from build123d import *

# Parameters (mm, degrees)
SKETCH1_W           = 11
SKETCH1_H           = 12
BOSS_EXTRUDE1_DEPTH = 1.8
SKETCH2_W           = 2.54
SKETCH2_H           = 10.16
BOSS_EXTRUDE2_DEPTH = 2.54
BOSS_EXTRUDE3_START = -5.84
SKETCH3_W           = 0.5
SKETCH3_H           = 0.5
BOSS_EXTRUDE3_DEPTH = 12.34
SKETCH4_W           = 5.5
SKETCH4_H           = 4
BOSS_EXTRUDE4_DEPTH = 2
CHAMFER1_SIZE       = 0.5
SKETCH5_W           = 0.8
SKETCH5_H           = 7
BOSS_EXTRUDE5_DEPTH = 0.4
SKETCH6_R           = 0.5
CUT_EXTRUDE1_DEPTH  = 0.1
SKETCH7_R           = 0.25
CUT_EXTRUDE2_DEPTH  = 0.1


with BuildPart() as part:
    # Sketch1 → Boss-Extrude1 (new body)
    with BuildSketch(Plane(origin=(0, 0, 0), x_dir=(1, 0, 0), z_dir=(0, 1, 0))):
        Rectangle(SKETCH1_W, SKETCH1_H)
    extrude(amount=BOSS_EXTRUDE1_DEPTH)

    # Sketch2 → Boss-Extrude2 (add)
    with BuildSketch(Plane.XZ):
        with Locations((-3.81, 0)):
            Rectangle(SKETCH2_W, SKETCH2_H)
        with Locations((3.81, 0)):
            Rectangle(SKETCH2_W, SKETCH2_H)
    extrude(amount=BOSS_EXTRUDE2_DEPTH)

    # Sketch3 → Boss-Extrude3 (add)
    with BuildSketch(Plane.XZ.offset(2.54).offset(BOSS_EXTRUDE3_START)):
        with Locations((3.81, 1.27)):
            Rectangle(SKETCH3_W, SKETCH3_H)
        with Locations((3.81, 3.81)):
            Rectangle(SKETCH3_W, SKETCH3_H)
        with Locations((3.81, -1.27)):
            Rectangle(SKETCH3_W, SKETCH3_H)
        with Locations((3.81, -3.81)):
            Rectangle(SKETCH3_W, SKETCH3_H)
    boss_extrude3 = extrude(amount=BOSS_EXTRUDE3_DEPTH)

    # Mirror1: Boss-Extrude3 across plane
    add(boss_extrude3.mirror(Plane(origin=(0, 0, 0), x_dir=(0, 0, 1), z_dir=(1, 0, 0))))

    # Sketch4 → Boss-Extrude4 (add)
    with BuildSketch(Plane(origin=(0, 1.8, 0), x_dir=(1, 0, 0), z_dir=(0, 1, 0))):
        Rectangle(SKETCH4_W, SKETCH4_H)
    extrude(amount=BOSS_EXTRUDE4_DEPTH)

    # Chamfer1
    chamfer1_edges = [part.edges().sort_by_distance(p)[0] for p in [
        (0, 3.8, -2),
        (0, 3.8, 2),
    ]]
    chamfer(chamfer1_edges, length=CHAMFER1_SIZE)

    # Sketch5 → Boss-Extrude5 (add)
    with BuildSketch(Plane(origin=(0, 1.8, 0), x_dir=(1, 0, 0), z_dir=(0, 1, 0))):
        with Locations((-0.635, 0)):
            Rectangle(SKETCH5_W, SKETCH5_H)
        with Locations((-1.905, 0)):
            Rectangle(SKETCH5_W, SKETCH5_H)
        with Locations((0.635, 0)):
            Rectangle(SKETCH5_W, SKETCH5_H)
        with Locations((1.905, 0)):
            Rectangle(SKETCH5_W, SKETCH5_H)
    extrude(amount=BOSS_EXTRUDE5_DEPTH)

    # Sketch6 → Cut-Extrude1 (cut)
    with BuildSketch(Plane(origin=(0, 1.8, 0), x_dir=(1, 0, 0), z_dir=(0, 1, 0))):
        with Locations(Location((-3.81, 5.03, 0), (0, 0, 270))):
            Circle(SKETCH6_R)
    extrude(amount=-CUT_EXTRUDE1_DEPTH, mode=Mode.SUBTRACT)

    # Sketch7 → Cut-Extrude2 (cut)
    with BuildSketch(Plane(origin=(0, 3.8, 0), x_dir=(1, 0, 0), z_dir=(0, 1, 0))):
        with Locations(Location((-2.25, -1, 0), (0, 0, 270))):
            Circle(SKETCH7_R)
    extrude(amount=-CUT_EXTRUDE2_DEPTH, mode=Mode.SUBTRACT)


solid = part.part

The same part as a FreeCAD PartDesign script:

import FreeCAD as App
import Part
import Sketcher


def edges_at(feature, points):
    """Names of the edges that pass closest to the given points."""
    edges = feature.Shape.Edges
    near = lambda p: min(range(len(edges)), key=lambda i: edges[i].distToShape(Part.Vertex(*p))[0])
    return sorted({f"Edge{near(p) + 1}" for p in points})

doc = App.newDocument("Part")
body = doc.addObject("PartDesign::Body", "Body")

sketch1 = body.newObject("Sketcher::SketchObject", "Sketch")
sketch1.AttachmentSupport = (doc.getObject("XZ_Plane"), [""])
sketch1.MapMode = "FlatFace"
sketch1.addGeometry(Part.LineSegment(App.Vector(-6, -6, 0), App.Vector(-6, 6, 0)), False)
sketch1.addGeometry(Part.LineSegment(App.Vector(-6, 6, 0), App.Vector(6, 6, 0)), False)
sketch1.addGeometry(Part.LineSegment(App.Vector(6, 6, 0), App.Vector(6, -6, 0)), False)
sketch1.addGeometry(Part.LineSegment(App.Vector(6, -6, 0), App.Vector(-6, -6, 0)), False)
sketch1.addConstraint(Sketcher.Constraint("Coincident", 0, 2, 1, 1))
sketch1.addConstraint(Sketcher.Constraint("Coincident", 1, 2, 2, 1))
sketch1.addConstraint(Sketcher.Constraint("Coincident", 2, 2, 3, 1))
sketch1.addConstraint(Sketcher.Constraint("Coincident", 3, 2, 0, 1))
sketch1.addConstraint(Sketcher.Constraint("Vertical", 0))
sketch1.addConstraint(Sketcher.Constraint("Horizontal", 1))
sketch1.addConstraint(Sketcher.Constraint("Vertical", 2))
sketch1.addConstraint(Sketcher.Constraint("Horizontal", 3))
sketch1.addConstraint(Sketcher.Constraint("Symmetric", 0, 2, 2, 2, -1, 1))
sketch1.addConstraint(Sketcher.Constraint("DistanceX", 1, 1, 1, 2, 11.0))
sketch1.addConstraint(Sketcher.Constraint("DistanceY", 0, 1, 0, 2, 12.0))
pad1 = body.newObject("PartDesign::Pad", "Pad")
pad1.Profile = sketch1
pad1.Length = 1.8
pad1.Reversed = True

sketch2 = body.newObject("Sketcher::SketchObject", "Sketch001")
sketch2.AttachmentSupport = (doc.getObject("XZ_Plane"), [""])
sketch2.MapMode = "FlatFace"
sketch2.addGeometry(Part.LineSegment(App.Vector(-5.1, 5.1, 0), App.Vector(-5.1, -5.1, 0)), False)
sketch2.addGeometry(Part.LineSegment(App.Vector(-5.1, -5.1, 0), App.Vector(-2.5, -5.1, 0)), False)
sketch2.addGeometry(Part.LineSegment(App.Vector(-2.5, -5.1, 0), App.Vector(-2.5, 5.1, 0)), False)
sketch2.addGeometry(Part.LineSegment(App.Vector(-2.5, 5.1, 0), App.Vector(-5.1, 5.1, 0)), False)
sketch2.addGeometry(Part.LineSegment(App.Vector(2.5, 5.1, 0), App.Vector(2.5, -5.1, 0)), False)
sketch2.addGeometry(Part.LineSegment(App.Vector(2.5, -5.1, 0), App.Vector(5.1, -5.1, 0)), False)
sketch2.addGeometry(Part.LineSegment(App.Vector(5.1, -5.1, 0), App.Vector(5.1, 5.1, 0)), False)
sketch2.addGeometry(Part.LineSegment(App.Vector(5.1, 5.1, 0), App.Vector(2.5, 5.1, 0)), False)
sketch2.addConstraint(Sketcher.Constraint("Coincident", 0, 2, 1, 1))
sketch2.addConstraint(Sketcher.Constraint("Coincident", 1, 2, 2, 1))
sketch2.addConstraint(Sketcher.Constraint("Coincident", 2, 2, 3, 1))
sketch2.addConstraint(Sketcher.Constraint("Coincident", 3, 2, 0, 1))
sketch2.addConstraint(Sketcher.Constraint("Coincident", 4, 2, 5, 1))
sketch2.addConstraint(Sketcher.Constraint("Coincident", 5, 2, 6, 1))
sketch2.addConstraint(Sketcher.Constraint("Coincident", 6, 2, 7, 1))
sketch2.addConstraint(Sketcher.Constraint("Coincident", 7, 2, 4, 1))
sketch2.addConstraint(Sketcher.Constraint("Vertical", 0))
sketch2.addConstraint(Sketcher.Constraint("Horizontal", 1))
sketch2.addConstraint(Sketcher.Constraint("Vertical", 2))
sketch2.addConstraint(Sketcher.Constraint("Horizontal", 3))
sketch2.addConstraint(Sketcher.Constraint("Vertical", 4))
sketch2.addConstraint(Sketcher.Constraint("Horizontal", 5))
sketch2.addConstraint(Sketcher.Constraint("Vertical", 6))
sketch2.addConstraint(Sketcher.Constraint("Horizontal", 7))
sketch2.addConstraint(Sketcher.Constraint("Symmetric", 2, 2, 4, 2, -1, 1))
sketch2.addConstraint(Sketcher.Constraint("Symmetric", 0, 2, 6, 2, -1, 1))
sketch2.addConstraint(Sketcher.Constraint("Horizontal", 1, 2, 4, 2))
sketch2.addConstraint(Sketcher.Constraint("DistanceX", 1, 1, 1, 2, 2.54))
sketch2.addConstraint(Sketcher.Constraint("DistanceY", 0, 2, 0, 1, 10.16))
sketch2.addConstraint(Sketcher.Constraint("DistanceX", 0, 2, -1, 1, 5.08))
pad2 = body.newObject("PartDesign::Pad", "Pad001")
pad2.Profile = sketch2
pad2.Length = 2.54

sketch3 = body.newObject("Sketcher::SketchObject", "Sketch002")
sketch3.AttachmentSupport = (doc.getObject("XZ_Plane"), [""])
sketch3.MapMode = "FlatFace"
sketch3.AttachmentOffset = App.Placement(App.Vector(0, 0, -3.3), App.Rotation())
sketch3.addGeometry(Part.LineSegment(App.Vector(3.56, 1.52, 0), App.Vector(3.56, 1.02, 0)), False)
sketch3.addGeometry(Part.LineSegment(App.Vector(3.56, 1.02, 0), App.Vector(4.06, 1.02, 0)), False)
sketch3.addGeometry(Part.LineSegment(App.Vector(4.06, 1.02, 0), App.Vector(4.06, 1.52, 0)), False)
sketch3.addGeometry(Part.LineSegment(App.Vector(4.06, 1.52, 0), App.Vector(3.56, 1.52, 0)), False)
sketch3.addGeometry(Part.LineSegment(App.Vector(3.56, 4.06, 0), App.Vector(3.56, 3.56, 0)), False)
sketch3.addGeometry(Part.LineSegment(App.Vector(3.56, 3.56, 0), App.Vector(4.06, 3.56, 0)), False)
sketch3.addGeometry(Part.LineSegment(App.Vector(4.06, 3.56, 0), App.Vector(4.06, 4.06, 0)), False)
sketch3.addGeometry(Part.LineSegment(App.Vector(4.06, 4.06, 0), App.Vector(3.56, 4.06, 0)), False)
sketch3.addGeometry(Part.LineSegment(App.Vector(3.56, -1.02, 0), App.Vector(3.56, -1.52, 0)), False)
sketch3.addGeometry(Part.LineSegment(App.Vector(3.56, -1.52, 0), App.Vector(4.06, -1.52, 0)), False)
sketch3.addGeometry(Part.LineSegment(App.Vector(4.06, -1.52, 0), App.Vector(4.06, -1.02, 0)), False)
sketch3.addGeometry(Part.LineSegment(App.Vector(4.06, -1.02, 0), App.Vector(3.56, -1.02, 0)), False)
sketch3.addGeometry(Part.LineSegment(App.Vector(3.56, -3.56, 0), App.Vector(3.56, -4.06, 0)), False)
sketch3.addGeometry(Part.LineSegment(App.Vector(3.56, -4.06, 0), App.Vector(4.06, -4.06, 0)), False)
sketch3.addGeometry(Part.LineSegment(App.Vector(4.06, -4.06, 0), App.Vector(4.06, -3.56, 0)), False)
sketch3.addGeometry(Part.LineSegment(App.Vector(4.06, -3.56, 0), App.Vector(3.56, -3.56, 0)), False)
sketch3.addConstraint(Sketcher.Constraint("Coincident", 0, 2, 1, 1))
sketch3.addConstraint(Sketcher.Constraint("Coincident", 1, 2, 2, 1))
sketch3.addConstraint(Sketcher.Constraint("Coincident", 2, 2, 3, 1))
sketch3.addConstraint(Sketcher.Constraint("Coincident", 3, 2, 0, 1))
sketch3.addConstraint(Sketcher.Constraint("Coincident", 4, 2, 5, 1))
sketch3.addConstraint(Sketcher.Constraint("Coincident", 5, 2, 6, 1))
sketch3.addConstraint(Sketcher.Constraint("Coincident", 6, 2, 7, 1))
sketch3.addConstraint(Sketcher.Constraint("Coincident", 7, 2, 4, 1))
sketch3.addConstraint(Sketcher.Constraint("Coincident", 8, 2, 9, 1))
sketch3.addConstraint(Sketcher.Constraint("Coincident", 9, 2, 10, 1))
sketch3.addConstraint(Sketcher.Constraint("Coincident", 10, 2, 11, 1))
sketch3.addConstraint(Sketcher.Constraint("Coincident", 11, 2, 8, 1))
sketch3.addConstraint(Sketcher.Constraint("Coincident", 12, 2, 13, 1))
sketch3.addConstraint(Sketcher.Constraint("Coincident", 13, 2, 14, 1))
sketch3.addConstraint(Sketcher.Constraint("Coincident", 14, 2, 15, 1))
sketch3.addConstraint(Sketcher.Constraint("Coincident", 15, 2, 12, 1))
sketch3.addConstraint(Sketcher.Constraint("Vertical", 0))
sketch3.addConstraint(Sketcher.Constraint("Horizontal", 1))
sketch3.addConstraint(Sketcher.Constraint("Vertical", 2))
sketch3.addConstraint(Sketcher.Constraint("Horizontal", 3))
sketch3.addConstraint(Sketcher.Constraint("Vertical", 4))
sketch3.addConstraint(Sketcher.Constraint("Horizontal", 5))
sketch3.addConstraint(Sketcher.Constraint("Vertical", 6))
sketch3.addConstraint(Sketcher.Constraint("Horizontal", 7))
sketch3.addConstraint(Sketcher.Constraint("Vertical", 8))
sketch3.addConstraint(Sketcher.Constraint("Horizontal", 9))
sketch3.addConstraint(Sketcher.Constraint("Vertical", 10))
sketch3.addConstraint(Sketcher.Constraint("Horizontal", 11))
sketch3.addConstraint(Sketcher.Constraint("Vertical", 12))
sketch3.addConstraint(Sketcher.Constraint("Horizontal", 13))
sketch3.addConstraint(Sketcher.Constraint("Vertical", 14))
sketch3.addConstraint(Sketcher.Constraint("Horizontal", 15))
sketch3.addConstraint(Sketcher.Constraint("Symmetric", 3, 2, 8, 2, -1))
sketch3.addConstraint(Sketcher.Constraint("Symmetric", 1, 2, 10, 2, -1))
sketch3.addConstraint(Sketcher.Constraint("Symmetric", 7, 2, 12, 2, -1))
sketch3.addConstraint(Sketcher.Constraint("Symmetric", 5, 2, 14, 2, -1))
sketch3.addConstraint(Sketcher.Constraint("Vertical", 3, 2, 4, 2))
sketch3.addConstraint(Sketcher.Constraint("Vertical", 2, 2, 5, 2))
sketch3.addConstraint(Sketcher.Constraint("Equal", 15, 0))
sketch3.addConstraint(Sketcher.Constraint("Equal", 2, 4))
sketch3.addConstraint(Sketcher.Constraint("DistanceX", 1, 1, 1, 2, 0.5))
sketch3.addConstraint(Sketcher.Constraint("DistanceX", -1, 1, 0, 2, 3.56))
sketch3.addConstraint(Sketcher.Constraint("DistanceY", -1, 1, 0, 2, 1.02))
sketch3.addConstraint(Sketcher.Constraint("DistanceY", -1, 1, 4, 2, 3.56))
pad3 = body.newObject("PartDesign::Pad", "Pad002")
pad3.Profile = sketch3
pad3.Length = 12.34
doc.recompute()

mirrored = body.newObject("PartDesign::Mirrored", "Mirrored")
mirrored.Originals = [pad3]
mirrored.MirrorPlane = (doc.getObject("YZ_Plane"), [""])
body.Tip = mirrored

sketch4 = body.newObject("Sketcher::SketchObject", "Sketch003")
sketch4.AttachmentSupport = (doc.getObject("XZ_Plane"), [""])
sketch4.MapMode = "FlatFace"
sketch4.AttachmentOffset = App.Placement(App.Vector(0, 0, -1.8), App.Rotation())
sketch4.addGeometry(Part.LineSegment(App.Vector(-2.8, -2, 0), App.Vector(-2.8, 2, 0)), False)
sketch4.addGeometry(Part.LineSegment(App.Vector(-2.8, 2, 0), App.Vector(2.8, 2, 0)), False)
sketch4.addGeometry(Part.LineSegment(App.Vector(2.8, 2, 0), App.Vector(2.8, -2, 0)), False)
sketch4.addGeometry(Part.LineSegment(App.Vector(2.8, -2, 0), App.Vector(-2.8, -2, 0)), False)
sketch4.addConstraint(Sketcher.Constraint("Coincident", 0, 2, 1, 1))
sketch4.addConstraint(Sketcher.Constraint("Coincident", 1, 2, 2, 1))
sketch4.addConstraint(Sketcher.Constraint("Coincident", 2, 2, 3, 1))
sketch4.addConstraint(Sketcher.Constraint("Coincident", 3, 2, 0, 1))
sketch4.addConstraint(Sketcher.Constraint("Vertical", 0))
sketch4.addConstraint(Sketcher.Constraint("Horizontal", 1))
sketch4.addConstraint(Sketcher.Constraint("Vertical", 2))
sketch4.addConstraint(Sketcher.Constraint("Horizontal", 3))
sketch4.addConstraint(Sketcher.Constraint("Symmetric", 0, 2, 2, 2, -1, 1))
sketch4.addConstraint(Sketcher.Constraint("DistanceY", 0, 1, 0, 2, 4.0))
sketch4.addConstraint(Sketcher.Constraint("DistanceX", 1, 1, 1, 2, 5.5))
pad4 = body.newObject("PartDesign::Pad", "Pad003")
pad4.Profile = sketch4
pad4.Length = 2
pad4.Reversed = True
doc.recompute()

chamfer = body.newObject("PartDesign::Chamfer", "Chamfer")
chamfer.Base = (pad4, edges_at(pad4, [(0, 3.8, -2), (0, 3.8, 2)]))
chamfer.Size = 0.5

sketch5 = body.newObject("Sketcher::SketchObject", "Sketch004")
sketch5.AttachmentSupport = (doc.getObject("XZ_Plane"), [""])
sketch5.MapMode = "FlatFace"
sketch5.AttachmentOffset = App.Placement(App.Vector(0, 0, -1.8), App.Rotation())
sketch5.addGeometry(Part.LineSegment(App.Vector(-1, -3.5, 0), App.Vector(-1, 3.5, 0)), False)
sketch5.addGeometry(Part.LineSegment(App.Vector(-1, 3.5, 0), App.Vector(-0.2, 3.5, 0)), False)
sketch5.addGeometry(Part.LineSegment(App.Vector(-0.2, 3.5, 0), App.Vector(-0.2, -3.5, 0)), False)
sketch5.addGeometry(Part.LineSegment(App.Vector(-0.2, -3.5, 0), App.Vector(-1, -3.5, 0)), False)
sketch5.addGeometry(Part.LineSegment(App.Vector(-2.3, -3.5, 0), App.Vector(-2.3, 3.5, 0)), False)
sketch5.addGeometry(Part.LineSegment(App.Vector(-2.3, 3.5, 0), App.Vector(-1.5, 3.5, 0)), False)
sketch5.addGeometry(Part.LineSegment(App.Vector(-1.5, 3.5, 0), App.Vector(-1.5, -3.5, 0)), False)
sketch5.addGeometry(Part.LineSegment(App.Vector(-1.5, -3.5, 0), App.Vector(-2.3, -3.5, 0)), False)
sketch5.addGeometry(Part.LineSegment(App.Vector(0.2, -3.5, 0), App.Vector(0.2, 3.5, 0)), False)
sketch5.addGeometry(Part.LineSegment(App.Vector(0.2, 3.5, 0), App.Vector(1, 3.5, 0)), False)
sketch5.addGeometry(Part.LineSegment(App.Vector(1, 3.5, 0), App.Vector(1, -3.5, 0)), False)
sketch5.addGeometry(Part.LineSegment(App.Vector(1, -3.5, 0), App.Vector(0.2, -3.5, 0)), False)
sketch5.addGeometry(Part.LineSegment(App.Vector(1.5, -3.5, 0), App.Vector(1.5, 3.5, 0)), False)
sketch5.addGeometry(Part.LineSegment(App.Vector(1.5, 3.5, 0), App.Vector(2.3, 3.5, 0)), False)
sketch5.addGeometry(Part.LineSegment(App.Vector(2.3, 3.5, 0), App.Vector(2.3, -3.5, 0)), False)
sketch5.addGeometry(Part.LineSegment(App.Vector(2.3, -3.5, 0), App.Vector(1.5, -3.5, 0)), False)
sketch5.addConstraint(Sketcher.Constraint("Coincident", 0, 2, 1, 1))
sketch5.addConstraint(Sketcher.Constraint("Coincident", 1, 2, 2, 1))
sketch5.addConstraint(Sketcher.Constraint("Coincident", 2, 2, 3, 1))
sketch5.addConstraint(Sketcher.Constraint("Coincident", 3, 2, 0, 1))
sketch5.addConstraint(Sketcher.Constraint("Coincident", 4, 2, 5, 1))
sketch5.addConstraint(Sketcher.Constraint("Coincident", 5, 2, 6, 1))
sketch5.addConstraint(Sketcher.Constraint("Coincident", 6, 2, 7, 1))
sketch5.addConstraint(Sketcher.Constraint("Coincident", 7, 2, 4, 1))
sketch5.addConstraint(Sketcher.Constraint("Coincident", 8, 2, 9, 1))
sketch5.addConstraint(Sketcher.Constraint("Coincident", 9, 2, 10, 1))
sketch5.addConstraint(Sketcher.Constraint("Coincident", 10, 2, 11, 1))
sketch5.addConstraint(Sketcher.Constraint("Coincident", 11, 2, 8, 1))
sketch5.addConstraint(Sketcher.Constraint("Coincident", 12, 2, 13, 1))
sketch5.addConstraint(Sketcher.Constraint("Coincident", 13, 2, 14, 1))
sketch5.addConstraint(Sketcher.Constraint("Coincident", 14, 2, 15, 1))
sketch5.addConstraint(Sketcher.Constraint("Coincident", 15, 2, 12, 1))
sketch5.addConstraint(Sketcher.Constraint("Vertical", 0))
sketch5.addConstraint(Sketcher.Constraint("Horizontal", 1))
sketch5.addConstraint(Sketcher.Constraint("Vertical", 2))
sketch5.addConstraint(Sketcher.Constraint("Horizontal", 3))
sketch5.addConstraint(Sketcher.Constraint("Vertical", 4))
sketch5.addConstraint(Sketcher.Constraint("Horizontal", 5))
sketch5.addConstraint(Sketcher.Constraint("Vertical", 6))
sketch5.addConstraint(Sketcher.Constraint("Horizontal", 7))
sketch5.addConstraint(Sketcher.Constraint("Vertical", 8))
sketch5.addConstraint(Sketcher.Constraint("Horizontal", 9))
sketch5.addConstraint(Sketcher.Constraint("Vertical", 10))
sketch5.addConstraint(Sketcher.Constraint("Horizontal", 11))
sketch5.addConstraint(Sketcher.Constraint("Vertical", 12))
sketch5.addConstraint(Sketcher.Constraint("Horizontal", 13))
sketch5.addConstraint(Sketcher.Constraint("Vertical", 14))
sketch5.addConstraint(Sketcher.Constraint("Horizontal", 15))
sketch5.addConstraint(Sketcher.Constraint("Symmetric", 2, 2, 8, 2, -1, 1))
sketch5.addConstraint(Sketcher.Constraint("Symmetric", 0, 2, 10, 2, -1, 1))
sketch5.addConstraint(Sketcher.Constraint("Symmetric", 6, 2, 12, 2, -1, 1))
sketch5.addConstraint(Sketcher.Constraint("Symmetric", 4, 2, 14, 2, -1, 1))
sketch5.addConstraint(Sketcher.Constraint("Horizontal", 1, 2, 4, 2))
sketch5.addConstraint(Sketcher.Constraint("Horizontal", 3, 2, 6, 2))
sketch5.addConstraint(Sketcher.Constraint("Horizontal", 5, 2, 8, 2))
sketch5.addConstraint(Sketcher.Constraint("Equal", 3, 5))
sketch5.addConstraint(Sketcher.Constraint("DistanceY", 0, 1, 0, 2, 7.0))
sketch5.addConstraint(Sketcher.Constraint("DistanceX", 1, 1, 1, 2, 0.8))
sketch5.addConstraint(Sketcher.Constraint("DistanceX", 4, 2, 0, 2, 1.27))
sketch5.addConstraint(Sketcher.Constraint("DistanceX", 1, 2, 8, 2, 0.47))
pad5 = body.newObject("PartDesign::Pad", "Pad004")
pad5.Profile = sketch5
pad5.Length = 0.4
pad5.Reversed = True

sketch6 = body.newObject("Sketcher::SketchObject", "Sketch005")
sketch6.AttachmentSupport = (doc.getObject("XZ_Plane"), [""])
sketch6.MapMode = "FlatFace"
sketch6.AttachmentOffset = App.Placement(App.Vector(0, 0, -1.8), App.Rotation())
sketch6.addGeometry(Part.Circle(App.Vector(-3.8, -5, 0), App.Vector(0, 0, 1), 0.5), False)
sketch6.addConstraint(Sketcher.Constraint("Diameter", 0, 1.0))
sketch6.addConstraint(Sketcher.Constraint("DistanceX", 0, 3, -1, 1, 3.81))
sketch6.addConstraint(Sketcher.Constraint("DistanceY", 0, 3, -1, 1, 5.03))
pocket1 = body.newObject("PartDesign::Pocket", "Pocket")
pocket1.Profile = sketch6
pocket1.Length = 0.1
pocket1.Reversed = True

sketch7 = body.newObject("Sketcher::SketchObject", "Sketch006")
sketch7.AttachmentSupport = (doc.getObject("XZ_Plane"), [""])
sketch7.MapMode = "FlatFace"
sketch7.AttachmentOffset = App.Placement(App.Vector(0, 0, -3.8), App.Rotation())
sketch7.addGeometry(Part.Circle(App.Vector(-2.25, 1, 0), App.Vector(0, 0, 1), 0.25), False)
sketch7.addConstraint(Sketcher.Constraint("Diameter", 0, 0.5))
sketch7.addConstraint(Sketcher.Constraint("DistanceY", -1, 1, 0, 3, 1.0))
sketch7.addConstraint(Sketcher.Constraint("DistanceX", 0, 3, -1, 1, 2.25))
pocket2 = body.newObject("PartDesign::Pocket", "Pocket001")
pocket2.Profile = sketch7
pocket2.Length = 0.1
pocket2.Reversed = True

doc.recompute()
